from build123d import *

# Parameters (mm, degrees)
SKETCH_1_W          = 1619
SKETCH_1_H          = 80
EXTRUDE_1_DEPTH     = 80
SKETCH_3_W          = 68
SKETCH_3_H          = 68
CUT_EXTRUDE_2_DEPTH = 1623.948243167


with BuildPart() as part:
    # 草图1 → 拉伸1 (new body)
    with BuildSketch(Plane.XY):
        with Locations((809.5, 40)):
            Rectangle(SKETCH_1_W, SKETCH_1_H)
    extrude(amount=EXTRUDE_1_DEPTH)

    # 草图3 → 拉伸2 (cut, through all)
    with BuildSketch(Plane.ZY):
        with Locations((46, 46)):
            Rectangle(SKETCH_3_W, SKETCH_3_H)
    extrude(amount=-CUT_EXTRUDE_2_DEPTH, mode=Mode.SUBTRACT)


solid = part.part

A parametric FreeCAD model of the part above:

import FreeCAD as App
import Part
import Sketcher


def add_polygon(sketch, points):
    """Adds a closed chain of lines whose ends are joined by coincident constraints."""
    first, n = sketch.GeometryCount, len(points)
    for a, b in zip(points, points[1:] + points[:1]):
        sketch.addGeometry(Part.LineSegment(App.Vector(*a, 0), App.Vector(*b, 0)), False)
    for i in range(n):
        sketch.addConstraint(Sketcher.Constraint("Coincident", first + i, 2, first + (i + 1) % n, 1))

doc = App.newDocument("Part")
body = doc.addObject("PartDesign::Body", "Body")

# Sketch on XY plane
sketch1 = body.newObject("Sketcher::SketchObject", "Sketch")
sketch1.AttachmentSupport = (doc.getObject("XY_Plane"), [""])
sketch1.MapMode = "FlatFace"
add_polygon(sketch1, [(0, 80), (0, 0), (1619, 0), (1619, 80)])  # lines 0-3
sketch1.addConstraint([
    Sketcher.Constraint("Vertical", 0),
    Sketcher.Constraint("Horizontal", 1),
    Sketcher.Constraint("Vertical", 2),
    Sketcher.Constraint("Horizontal", 3),
    Sketcher.Constraint("Coincident", 0, 2, -1, 1),
    Sketcher.Constraint("DistanceX", 1, 1, 1, 2, 1619.0),
    Sketcher.Constraint("DistanceY", 0, 2, 0, 1, 80.0),
])
pad1 = body.newObject("PartDesign::Pad", "Pad")
pad1.Profile = sketch1
pad1.Length = 80

# Sketch on YZ plane
sketch2 = body.newObject("Sketcher::SketchObject", "Sketch001")
sketch2.AttachmentSupport = (doc.getObject("YZ_Plane"), [""])
sketch2.MapMode = "FlatFace"
add_polygon(sketch2, [(80, 12), (12, 12), (12, 80), (80, 80)])  # lines 0-3
sketch2.addConstraint([
    Sketcher.Constraint("Horizontal", 0),
    Sketcher.Constraint("Vertical", 1),
    Sketcher.Constraint("Horizontal", 2),
    Sketcher.Constraint("Vertical", 3),
    Sketcher.Constraint("Equal", 2, 1),
    Sketcher.Constraint("DistanceX", 0, 2, 0, 1, 68.0),
    Sketcher.Constraint("DistanceX", -1, 1, 0, 2, 12.0),
    Sketcher.Constraint("DistanceY", -1, 1, 0, 2, 12.0),
])
pocket1 = body.newObject("PartDesign::Pocket", "Pocket")
pocket1.Profile = sketch2
pocket1.Type = "ThroughAll"
pocket1.Reversed = True

doc.recompute()
